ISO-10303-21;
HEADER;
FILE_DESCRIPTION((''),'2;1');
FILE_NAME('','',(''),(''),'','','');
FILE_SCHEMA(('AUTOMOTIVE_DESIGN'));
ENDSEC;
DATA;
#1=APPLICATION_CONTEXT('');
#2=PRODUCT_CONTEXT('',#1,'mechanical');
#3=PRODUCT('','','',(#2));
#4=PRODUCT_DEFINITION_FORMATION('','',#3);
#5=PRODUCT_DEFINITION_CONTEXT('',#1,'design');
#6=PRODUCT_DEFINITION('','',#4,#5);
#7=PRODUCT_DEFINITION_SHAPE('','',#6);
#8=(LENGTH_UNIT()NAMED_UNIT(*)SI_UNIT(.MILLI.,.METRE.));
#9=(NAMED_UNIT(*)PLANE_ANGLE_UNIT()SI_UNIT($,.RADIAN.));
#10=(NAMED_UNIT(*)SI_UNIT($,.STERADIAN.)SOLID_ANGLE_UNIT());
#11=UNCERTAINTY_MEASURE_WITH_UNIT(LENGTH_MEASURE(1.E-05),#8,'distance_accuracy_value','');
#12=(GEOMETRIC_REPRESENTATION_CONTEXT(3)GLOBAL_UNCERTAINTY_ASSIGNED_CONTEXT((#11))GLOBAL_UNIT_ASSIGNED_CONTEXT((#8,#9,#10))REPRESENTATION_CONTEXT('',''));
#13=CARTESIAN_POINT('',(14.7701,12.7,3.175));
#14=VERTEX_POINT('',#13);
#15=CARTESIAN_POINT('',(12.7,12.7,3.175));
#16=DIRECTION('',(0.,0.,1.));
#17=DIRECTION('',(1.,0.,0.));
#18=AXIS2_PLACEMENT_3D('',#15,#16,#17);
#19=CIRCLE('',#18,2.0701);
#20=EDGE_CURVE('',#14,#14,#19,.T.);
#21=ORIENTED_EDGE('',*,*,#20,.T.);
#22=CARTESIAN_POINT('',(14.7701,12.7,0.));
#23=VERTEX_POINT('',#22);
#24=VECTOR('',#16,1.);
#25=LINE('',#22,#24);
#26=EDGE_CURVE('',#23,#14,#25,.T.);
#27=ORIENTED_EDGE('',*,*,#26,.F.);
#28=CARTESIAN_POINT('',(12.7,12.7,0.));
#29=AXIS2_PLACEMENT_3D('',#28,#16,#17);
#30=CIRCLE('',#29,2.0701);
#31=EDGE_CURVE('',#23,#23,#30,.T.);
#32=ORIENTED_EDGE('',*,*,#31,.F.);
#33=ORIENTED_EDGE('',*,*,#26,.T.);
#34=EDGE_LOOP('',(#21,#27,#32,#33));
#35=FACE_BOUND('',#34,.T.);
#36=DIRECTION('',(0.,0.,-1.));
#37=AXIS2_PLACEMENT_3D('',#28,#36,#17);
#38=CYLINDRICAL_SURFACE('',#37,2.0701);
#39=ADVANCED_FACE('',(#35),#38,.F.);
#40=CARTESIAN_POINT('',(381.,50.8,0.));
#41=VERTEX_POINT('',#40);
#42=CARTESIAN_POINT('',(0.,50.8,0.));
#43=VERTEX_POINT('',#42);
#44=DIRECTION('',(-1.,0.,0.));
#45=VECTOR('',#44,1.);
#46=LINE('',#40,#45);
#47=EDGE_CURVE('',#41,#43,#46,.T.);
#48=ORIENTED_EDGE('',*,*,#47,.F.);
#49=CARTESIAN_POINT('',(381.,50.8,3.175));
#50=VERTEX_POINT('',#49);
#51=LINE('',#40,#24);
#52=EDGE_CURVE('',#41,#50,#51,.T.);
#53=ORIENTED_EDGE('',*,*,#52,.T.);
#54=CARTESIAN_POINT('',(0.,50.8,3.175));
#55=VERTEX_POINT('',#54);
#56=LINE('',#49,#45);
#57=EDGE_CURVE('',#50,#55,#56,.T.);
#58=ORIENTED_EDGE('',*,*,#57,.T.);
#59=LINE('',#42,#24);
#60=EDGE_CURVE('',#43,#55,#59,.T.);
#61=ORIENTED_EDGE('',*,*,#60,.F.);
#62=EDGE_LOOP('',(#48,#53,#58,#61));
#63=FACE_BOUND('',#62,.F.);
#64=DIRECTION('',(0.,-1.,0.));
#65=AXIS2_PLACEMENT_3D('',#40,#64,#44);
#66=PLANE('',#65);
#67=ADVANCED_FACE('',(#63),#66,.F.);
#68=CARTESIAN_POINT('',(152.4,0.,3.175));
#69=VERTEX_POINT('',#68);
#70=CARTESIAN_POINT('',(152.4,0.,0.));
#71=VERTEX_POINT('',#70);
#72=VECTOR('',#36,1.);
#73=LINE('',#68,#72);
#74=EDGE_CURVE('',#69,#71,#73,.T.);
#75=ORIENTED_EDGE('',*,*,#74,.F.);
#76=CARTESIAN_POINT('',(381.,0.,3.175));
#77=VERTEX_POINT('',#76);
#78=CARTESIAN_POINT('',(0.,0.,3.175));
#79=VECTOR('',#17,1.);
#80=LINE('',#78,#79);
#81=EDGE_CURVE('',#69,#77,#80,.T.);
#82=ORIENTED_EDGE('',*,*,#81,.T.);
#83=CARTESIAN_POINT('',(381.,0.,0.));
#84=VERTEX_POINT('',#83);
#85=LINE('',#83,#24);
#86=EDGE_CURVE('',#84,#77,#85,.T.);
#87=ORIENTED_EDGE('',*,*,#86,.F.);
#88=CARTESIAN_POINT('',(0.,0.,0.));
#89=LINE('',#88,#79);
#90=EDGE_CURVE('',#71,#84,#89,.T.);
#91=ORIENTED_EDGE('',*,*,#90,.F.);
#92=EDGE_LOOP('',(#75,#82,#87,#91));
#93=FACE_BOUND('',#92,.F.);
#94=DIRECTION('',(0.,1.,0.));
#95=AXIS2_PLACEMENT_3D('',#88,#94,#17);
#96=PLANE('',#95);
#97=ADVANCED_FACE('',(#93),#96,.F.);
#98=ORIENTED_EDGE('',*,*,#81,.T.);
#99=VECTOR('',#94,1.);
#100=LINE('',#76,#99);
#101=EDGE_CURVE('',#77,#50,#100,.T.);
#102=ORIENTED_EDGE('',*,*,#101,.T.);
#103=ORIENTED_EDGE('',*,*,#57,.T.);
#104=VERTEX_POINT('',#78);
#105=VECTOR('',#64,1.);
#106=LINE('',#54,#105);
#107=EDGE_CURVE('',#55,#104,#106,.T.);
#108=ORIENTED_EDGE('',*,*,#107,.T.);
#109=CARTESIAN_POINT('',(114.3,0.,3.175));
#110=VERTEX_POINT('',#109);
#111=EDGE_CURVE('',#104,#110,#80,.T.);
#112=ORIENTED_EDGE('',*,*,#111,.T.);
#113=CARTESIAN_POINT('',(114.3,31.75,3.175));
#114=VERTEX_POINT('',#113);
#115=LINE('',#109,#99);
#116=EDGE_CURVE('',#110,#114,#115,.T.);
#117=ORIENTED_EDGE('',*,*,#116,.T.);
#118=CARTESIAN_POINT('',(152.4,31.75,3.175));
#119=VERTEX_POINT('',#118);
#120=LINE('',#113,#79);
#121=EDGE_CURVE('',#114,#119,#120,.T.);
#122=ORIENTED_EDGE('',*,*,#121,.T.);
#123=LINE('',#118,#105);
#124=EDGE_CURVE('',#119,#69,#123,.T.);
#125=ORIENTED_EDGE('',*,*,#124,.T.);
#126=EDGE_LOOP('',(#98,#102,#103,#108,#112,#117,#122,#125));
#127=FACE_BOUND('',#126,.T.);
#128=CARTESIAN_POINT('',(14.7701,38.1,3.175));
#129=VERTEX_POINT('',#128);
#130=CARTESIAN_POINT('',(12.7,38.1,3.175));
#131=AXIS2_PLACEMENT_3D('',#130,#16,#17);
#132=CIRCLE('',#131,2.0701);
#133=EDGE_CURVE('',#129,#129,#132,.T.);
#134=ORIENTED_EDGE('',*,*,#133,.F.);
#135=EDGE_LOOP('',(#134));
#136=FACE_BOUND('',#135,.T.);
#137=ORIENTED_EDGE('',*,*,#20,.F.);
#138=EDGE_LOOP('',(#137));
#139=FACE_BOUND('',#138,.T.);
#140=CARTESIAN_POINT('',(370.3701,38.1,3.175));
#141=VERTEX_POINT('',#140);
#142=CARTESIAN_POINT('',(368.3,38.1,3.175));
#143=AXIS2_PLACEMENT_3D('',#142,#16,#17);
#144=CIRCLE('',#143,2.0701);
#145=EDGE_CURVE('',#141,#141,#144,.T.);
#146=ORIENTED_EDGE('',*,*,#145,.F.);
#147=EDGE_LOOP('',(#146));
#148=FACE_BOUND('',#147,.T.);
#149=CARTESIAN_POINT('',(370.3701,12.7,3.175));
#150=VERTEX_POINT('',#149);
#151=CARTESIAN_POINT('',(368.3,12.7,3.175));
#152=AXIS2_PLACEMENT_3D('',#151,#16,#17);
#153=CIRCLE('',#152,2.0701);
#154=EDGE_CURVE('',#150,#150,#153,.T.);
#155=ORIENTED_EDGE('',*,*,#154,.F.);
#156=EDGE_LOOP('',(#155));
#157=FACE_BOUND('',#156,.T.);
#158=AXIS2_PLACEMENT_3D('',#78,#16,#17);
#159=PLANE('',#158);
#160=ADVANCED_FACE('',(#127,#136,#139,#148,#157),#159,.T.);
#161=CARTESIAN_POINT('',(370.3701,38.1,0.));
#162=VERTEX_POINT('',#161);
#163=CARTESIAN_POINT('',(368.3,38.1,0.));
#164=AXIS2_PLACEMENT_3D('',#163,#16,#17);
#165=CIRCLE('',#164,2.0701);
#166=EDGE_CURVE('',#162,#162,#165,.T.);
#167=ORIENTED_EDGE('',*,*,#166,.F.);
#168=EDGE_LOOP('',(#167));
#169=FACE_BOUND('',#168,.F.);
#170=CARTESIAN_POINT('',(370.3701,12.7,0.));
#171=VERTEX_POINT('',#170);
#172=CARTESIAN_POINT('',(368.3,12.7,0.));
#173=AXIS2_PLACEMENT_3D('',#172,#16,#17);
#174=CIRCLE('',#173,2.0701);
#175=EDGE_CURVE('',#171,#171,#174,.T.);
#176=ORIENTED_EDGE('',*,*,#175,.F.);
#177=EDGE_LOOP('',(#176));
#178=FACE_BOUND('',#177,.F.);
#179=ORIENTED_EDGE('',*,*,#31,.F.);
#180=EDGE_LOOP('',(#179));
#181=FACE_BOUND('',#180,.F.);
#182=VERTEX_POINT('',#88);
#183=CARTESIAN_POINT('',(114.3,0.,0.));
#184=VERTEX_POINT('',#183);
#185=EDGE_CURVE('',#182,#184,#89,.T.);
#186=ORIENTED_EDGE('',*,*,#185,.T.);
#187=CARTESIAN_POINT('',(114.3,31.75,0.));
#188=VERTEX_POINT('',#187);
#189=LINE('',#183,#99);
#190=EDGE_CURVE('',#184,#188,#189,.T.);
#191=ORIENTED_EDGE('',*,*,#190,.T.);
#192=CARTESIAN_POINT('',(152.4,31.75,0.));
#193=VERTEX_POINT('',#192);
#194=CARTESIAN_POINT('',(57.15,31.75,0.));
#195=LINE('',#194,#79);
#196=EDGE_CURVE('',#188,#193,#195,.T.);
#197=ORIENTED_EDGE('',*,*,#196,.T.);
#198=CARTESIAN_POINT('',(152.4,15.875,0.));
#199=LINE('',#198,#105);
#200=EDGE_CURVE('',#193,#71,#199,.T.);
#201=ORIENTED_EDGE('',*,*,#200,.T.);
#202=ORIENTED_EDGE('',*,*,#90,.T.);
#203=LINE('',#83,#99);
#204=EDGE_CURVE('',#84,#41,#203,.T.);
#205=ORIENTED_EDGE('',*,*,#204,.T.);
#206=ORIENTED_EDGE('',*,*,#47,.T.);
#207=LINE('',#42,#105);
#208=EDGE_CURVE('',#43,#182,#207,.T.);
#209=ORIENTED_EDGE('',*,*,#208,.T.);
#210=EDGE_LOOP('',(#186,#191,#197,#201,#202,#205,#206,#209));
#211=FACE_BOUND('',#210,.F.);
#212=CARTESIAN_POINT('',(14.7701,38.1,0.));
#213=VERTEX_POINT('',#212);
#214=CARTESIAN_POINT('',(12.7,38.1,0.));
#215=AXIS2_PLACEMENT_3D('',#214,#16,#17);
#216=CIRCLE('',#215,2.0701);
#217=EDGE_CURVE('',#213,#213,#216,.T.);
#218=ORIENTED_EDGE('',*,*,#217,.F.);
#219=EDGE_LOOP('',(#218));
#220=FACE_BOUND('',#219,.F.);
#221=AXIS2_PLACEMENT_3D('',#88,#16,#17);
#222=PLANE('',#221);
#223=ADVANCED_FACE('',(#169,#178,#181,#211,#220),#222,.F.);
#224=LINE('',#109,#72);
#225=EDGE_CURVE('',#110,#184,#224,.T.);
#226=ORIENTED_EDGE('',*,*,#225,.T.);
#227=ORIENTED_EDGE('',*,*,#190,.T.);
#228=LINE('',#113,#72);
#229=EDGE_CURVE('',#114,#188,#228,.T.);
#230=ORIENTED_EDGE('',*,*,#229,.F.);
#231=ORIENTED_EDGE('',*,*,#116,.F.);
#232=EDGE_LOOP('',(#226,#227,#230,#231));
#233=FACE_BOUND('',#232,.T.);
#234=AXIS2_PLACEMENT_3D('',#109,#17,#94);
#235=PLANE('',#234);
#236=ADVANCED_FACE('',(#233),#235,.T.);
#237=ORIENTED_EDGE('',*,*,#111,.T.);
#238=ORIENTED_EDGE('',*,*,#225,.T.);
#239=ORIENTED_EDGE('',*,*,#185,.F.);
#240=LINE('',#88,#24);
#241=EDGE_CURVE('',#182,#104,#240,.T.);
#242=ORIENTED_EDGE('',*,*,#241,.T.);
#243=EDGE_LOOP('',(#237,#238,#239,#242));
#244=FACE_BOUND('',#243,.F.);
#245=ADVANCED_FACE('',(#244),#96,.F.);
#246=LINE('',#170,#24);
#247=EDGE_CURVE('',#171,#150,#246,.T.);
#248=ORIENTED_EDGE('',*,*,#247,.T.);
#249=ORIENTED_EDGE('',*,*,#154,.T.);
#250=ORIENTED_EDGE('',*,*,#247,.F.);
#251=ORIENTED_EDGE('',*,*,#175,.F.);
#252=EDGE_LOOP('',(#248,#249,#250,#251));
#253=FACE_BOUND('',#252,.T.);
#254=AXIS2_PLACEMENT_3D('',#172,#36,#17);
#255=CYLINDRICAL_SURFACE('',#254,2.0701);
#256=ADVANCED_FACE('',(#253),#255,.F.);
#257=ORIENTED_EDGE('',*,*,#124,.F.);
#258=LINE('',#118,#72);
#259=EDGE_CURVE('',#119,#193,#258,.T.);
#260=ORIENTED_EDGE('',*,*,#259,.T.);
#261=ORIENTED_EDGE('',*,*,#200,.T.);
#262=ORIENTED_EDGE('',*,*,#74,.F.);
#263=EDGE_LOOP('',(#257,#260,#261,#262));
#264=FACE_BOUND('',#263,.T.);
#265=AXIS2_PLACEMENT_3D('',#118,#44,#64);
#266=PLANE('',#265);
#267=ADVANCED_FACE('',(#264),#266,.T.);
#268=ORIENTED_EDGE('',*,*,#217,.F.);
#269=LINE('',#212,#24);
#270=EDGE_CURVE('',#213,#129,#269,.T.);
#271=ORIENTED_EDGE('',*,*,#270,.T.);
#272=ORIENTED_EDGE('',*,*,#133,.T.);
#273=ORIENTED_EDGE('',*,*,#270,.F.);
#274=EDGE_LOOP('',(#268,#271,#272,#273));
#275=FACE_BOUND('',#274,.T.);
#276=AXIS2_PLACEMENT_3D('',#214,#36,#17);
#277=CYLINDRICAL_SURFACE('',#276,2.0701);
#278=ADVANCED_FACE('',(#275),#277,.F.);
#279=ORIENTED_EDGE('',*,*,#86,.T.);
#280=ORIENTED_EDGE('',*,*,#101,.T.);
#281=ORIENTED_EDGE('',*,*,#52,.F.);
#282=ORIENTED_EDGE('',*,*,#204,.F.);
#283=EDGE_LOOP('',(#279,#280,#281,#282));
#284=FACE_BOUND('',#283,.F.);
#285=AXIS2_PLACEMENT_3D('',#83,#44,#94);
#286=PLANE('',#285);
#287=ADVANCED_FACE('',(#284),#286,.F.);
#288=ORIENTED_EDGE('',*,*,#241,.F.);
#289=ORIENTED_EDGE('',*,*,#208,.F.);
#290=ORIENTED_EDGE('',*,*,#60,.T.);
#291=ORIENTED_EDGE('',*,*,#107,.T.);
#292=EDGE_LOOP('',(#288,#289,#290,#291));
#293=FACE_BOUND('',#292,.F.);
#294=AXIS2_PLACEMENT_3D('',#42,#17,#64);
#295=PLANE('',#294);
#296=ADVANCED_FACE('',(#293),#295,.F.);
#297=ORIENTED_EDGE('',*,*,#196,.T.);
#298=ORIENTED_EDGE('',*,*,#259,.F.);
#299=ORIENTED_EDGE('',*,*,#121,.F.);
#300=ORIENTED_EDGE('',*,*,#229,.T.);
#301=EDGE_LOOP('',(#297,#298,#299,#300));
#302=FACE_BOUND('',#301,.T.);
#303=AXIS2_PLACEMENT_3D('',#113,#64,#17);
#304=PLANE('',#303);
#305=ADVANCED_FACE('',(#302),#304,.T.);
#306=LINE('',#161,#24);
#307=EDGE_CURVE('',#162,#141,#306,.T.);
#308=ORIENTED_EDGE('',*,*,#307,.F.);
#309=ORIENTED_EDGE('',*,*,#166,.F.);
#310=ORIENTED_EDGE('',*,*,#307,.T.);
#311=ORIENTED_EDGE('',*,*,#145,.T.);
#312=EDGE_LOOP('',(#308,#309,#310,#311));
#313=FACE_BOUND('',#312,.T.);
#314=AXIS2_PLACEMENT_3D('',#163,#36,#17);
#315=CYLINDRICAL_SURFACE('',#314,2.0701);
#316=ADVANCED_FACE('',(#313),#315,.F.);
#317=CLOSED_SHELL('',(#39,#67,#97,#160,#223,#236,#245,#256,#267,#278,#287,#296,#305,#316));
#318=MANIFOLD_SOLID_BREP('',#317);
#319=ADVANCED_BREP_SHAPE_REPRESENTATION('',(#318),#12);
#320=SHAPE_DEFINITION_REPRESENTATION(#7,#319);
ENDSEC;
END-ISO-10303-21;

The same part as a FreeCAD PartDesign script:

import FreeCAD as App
import Part
import Sketcher
from FreeCAD import Vector
Q = App.Units.Quantity

doc = App.newDocument("Part")
body = doc.addObject("PartDesign::Body", "Body")

sketch1 = body.newObject("Sketcher::SketchObject", "Sketch")
sketch1.AttachmentSupport = (doc.getObject("XY_Plane"), [""])
sketch1.MapMode = "FlatFace"
sketch1.addGeometry(Part.LineSegment(Vector(0, 50.8, 0), Vector(0, 0, 0)), False)
sketch1.addGeometry(Part.LineSegment(Vector(0, 0, 0), Vector(381, 0, 0)), False)
sketch1.addGeometry(Part.LineSegment(Vector(381, 0, 0), Vector(381, 50.8, 0)), False)
sketch1.addGeometry(Part.LineSegment(Vector(381, 50.8, 0), Vector(0, 50.8, 0)), False)
sketch1.addGeometry(Part.Circle(Vector(12.7, 12.7, 0), Vector(0, 0, 1), 2.1), False)
sketch1.addGeometry(Part.Circle(Vector(368.3, 12.7, 0), Vector(0, 0, 1), 2.1), False)
sketch1.addGeometry(Part.Circle(Vector(12.7, 38.1, 0), Vector(0, 0, 1), 2.1), False)
sketch1.addGeometry(Part.Circle(Vector(368.3, 38.1, 0), Vector(0, 0, 1), 2.1), False)
sketch1.addConstraint(Sketcher.Constraint("Coincident", 0, 2, 1, 1))
sketch1.addConstraint(Sketcher.Constraint("Coincident", 1, 2, 2, 1))
sketch1.addConstraint(Sketcher.Constraint("Coincident", 2, 2, 3, 1))
sketch1.addConstraint(Sketcher.Constraint("Coincident", 3, 2, 0, 1))
sketch1.addConstraint(Sketcher.Constraint("Vertical", 0))
sketch1.addConstraint(Sketcher.Constraint("Horizontal", 1))
sketch1.addConstraint(Sketcher.Constraint("Vertical", 2))
sketch1.addConstraint(Sketcher.Constraint("Horizontal", 3))
sketch1.addConstraint(Sketcher.Constraint("Coincident", 0, 2, -1, 1))
sketch1.addConstraint(Sketcher.Constraint("Equal", 4, 5))
sketch1.addConstraint(Sketcher.Constraint("Equal", 5, 6))
sketch1.addConstraint(Sketcher.Constraint("Equal", 6, 7))
sketch1.addConstraint(Sketcher.Constraint("Horizontal", 4, 3, 5, 3))
sketch1.addConstraint(Sketcher.Constraint("Horizontal", 6, 3, 7, 3))
sketch1.addConstraint(Sketcher.Constraint("Vertical", 4, 3, 6, 3))
sketch1.addConstraint(Sketcher.Constraint("Vertical", 5, 3, 7, 3))
sketch1.addConstraint(Sketcher.Constraint("DistanceX", 1, 1, 1, 2, Q("15 in")))
sketch1.addConstraint(Sketcher.Constraint("DistanceY", 0, 2, 0, 1, Q("2 in")))
sketch1.addConstraint(Sketcher.Constraint("Diameter", 4, Q("0.163 in")))
sketch1.addConstraint(Sketcher.Constraint("DistanceX", 4, 3, 5, 3, Q("14 in")))
sketch1.addConstraint(Sketcher.Constraint("DistanceY", 4, 3, 6, 3, Q("1 in")))
sketch1.addConstraint(Sketcher.Constraint("DistanceX", -1, 1, 4, 3, Q("0.5 in")))
sketch1.addConstraint(Sketcher.Constraint("DistanceY", -1, 1, 4, 3, Q("0.5 in")))
pad1 = body.newObject("PartDesign::Pad", "Pad")
pad1.Profile = sketch1
pad1.Length = Q("0.125 in")

sketch2 = body.newObject("Sketcher::SketchObject", "Sketch001")
sketch2.AttachmentSupport = (doc.getObject("XY_Plane"), [""])
sketch2.MapMode = "FlatFace"
sketch2.AttachmentOffset = App.Placement(Vector(0, 0, 0.125 * 25.4), App.Rotation())
sketch2.addGeometry(Part.LineSegment(Vector(114, 32, 0), Vector(114, 0, 0)), False)
sketch2.addGeometry(Part.LineSegment(Vector(114, 0, 0), Vector(152, 0, 0)), False)
sketch2.addGeometry(Part.LineSegment(Vector(152, 0, 0), Vector(152, 32, 0)), False)
sketch2.addGeometry(Part.LineSegment(Vector(152, 32, 0), Vector(114, 32, 0)), False)
sketch2.addConstraint(Sketcher.Constraint("Coincident", 0, 2, 1, 1))
sketch2.addConstraint(Sketcher.Constraint("Coincident", 1, 2, 2, 1))
sketch2.addConstraint(Sketcher.Constraint("Coincident", 2, 2, 3, 1))
sketch2.addConstraint(Sketcher.Constraint("Coincident", 3, 2, 0, 1))
sketch2.addConstraint(Sketcher.Constraint("Vertical", 0))
sketch2.addConstraint(Sketcher.Constraint("Horizontal", 1))
sketch2.addConstraint(Sketcher.Constraint("Vertical", 2))
sketch2.addConstraint(Sketcher.Constraint("Horizontal", 3))
sketch2.addConstraint(Sketcher.Constraint("PointOnObject", 0, 2, -1))
sketch2.addConstraint(Sketcher.Constraint("DistanceX", 1, 1, 1, 2, Q("1.5 in")))
sketch2.addConstraint(Sketcher.Constraint("DistanceY", 0, 2, 0, 1, Q("1.25 in")))
sketch2.addConstraint(Sketcher.Constraint("DistanceX", -1, 1, 0, 2, Q("4.5 in")))
pocket1 = body.newObject("PartDesign::Pocket", "Pocket")
pocket1.Profile = sketch2
pocket1.Length = Q("1 in")

doc.recompute()
